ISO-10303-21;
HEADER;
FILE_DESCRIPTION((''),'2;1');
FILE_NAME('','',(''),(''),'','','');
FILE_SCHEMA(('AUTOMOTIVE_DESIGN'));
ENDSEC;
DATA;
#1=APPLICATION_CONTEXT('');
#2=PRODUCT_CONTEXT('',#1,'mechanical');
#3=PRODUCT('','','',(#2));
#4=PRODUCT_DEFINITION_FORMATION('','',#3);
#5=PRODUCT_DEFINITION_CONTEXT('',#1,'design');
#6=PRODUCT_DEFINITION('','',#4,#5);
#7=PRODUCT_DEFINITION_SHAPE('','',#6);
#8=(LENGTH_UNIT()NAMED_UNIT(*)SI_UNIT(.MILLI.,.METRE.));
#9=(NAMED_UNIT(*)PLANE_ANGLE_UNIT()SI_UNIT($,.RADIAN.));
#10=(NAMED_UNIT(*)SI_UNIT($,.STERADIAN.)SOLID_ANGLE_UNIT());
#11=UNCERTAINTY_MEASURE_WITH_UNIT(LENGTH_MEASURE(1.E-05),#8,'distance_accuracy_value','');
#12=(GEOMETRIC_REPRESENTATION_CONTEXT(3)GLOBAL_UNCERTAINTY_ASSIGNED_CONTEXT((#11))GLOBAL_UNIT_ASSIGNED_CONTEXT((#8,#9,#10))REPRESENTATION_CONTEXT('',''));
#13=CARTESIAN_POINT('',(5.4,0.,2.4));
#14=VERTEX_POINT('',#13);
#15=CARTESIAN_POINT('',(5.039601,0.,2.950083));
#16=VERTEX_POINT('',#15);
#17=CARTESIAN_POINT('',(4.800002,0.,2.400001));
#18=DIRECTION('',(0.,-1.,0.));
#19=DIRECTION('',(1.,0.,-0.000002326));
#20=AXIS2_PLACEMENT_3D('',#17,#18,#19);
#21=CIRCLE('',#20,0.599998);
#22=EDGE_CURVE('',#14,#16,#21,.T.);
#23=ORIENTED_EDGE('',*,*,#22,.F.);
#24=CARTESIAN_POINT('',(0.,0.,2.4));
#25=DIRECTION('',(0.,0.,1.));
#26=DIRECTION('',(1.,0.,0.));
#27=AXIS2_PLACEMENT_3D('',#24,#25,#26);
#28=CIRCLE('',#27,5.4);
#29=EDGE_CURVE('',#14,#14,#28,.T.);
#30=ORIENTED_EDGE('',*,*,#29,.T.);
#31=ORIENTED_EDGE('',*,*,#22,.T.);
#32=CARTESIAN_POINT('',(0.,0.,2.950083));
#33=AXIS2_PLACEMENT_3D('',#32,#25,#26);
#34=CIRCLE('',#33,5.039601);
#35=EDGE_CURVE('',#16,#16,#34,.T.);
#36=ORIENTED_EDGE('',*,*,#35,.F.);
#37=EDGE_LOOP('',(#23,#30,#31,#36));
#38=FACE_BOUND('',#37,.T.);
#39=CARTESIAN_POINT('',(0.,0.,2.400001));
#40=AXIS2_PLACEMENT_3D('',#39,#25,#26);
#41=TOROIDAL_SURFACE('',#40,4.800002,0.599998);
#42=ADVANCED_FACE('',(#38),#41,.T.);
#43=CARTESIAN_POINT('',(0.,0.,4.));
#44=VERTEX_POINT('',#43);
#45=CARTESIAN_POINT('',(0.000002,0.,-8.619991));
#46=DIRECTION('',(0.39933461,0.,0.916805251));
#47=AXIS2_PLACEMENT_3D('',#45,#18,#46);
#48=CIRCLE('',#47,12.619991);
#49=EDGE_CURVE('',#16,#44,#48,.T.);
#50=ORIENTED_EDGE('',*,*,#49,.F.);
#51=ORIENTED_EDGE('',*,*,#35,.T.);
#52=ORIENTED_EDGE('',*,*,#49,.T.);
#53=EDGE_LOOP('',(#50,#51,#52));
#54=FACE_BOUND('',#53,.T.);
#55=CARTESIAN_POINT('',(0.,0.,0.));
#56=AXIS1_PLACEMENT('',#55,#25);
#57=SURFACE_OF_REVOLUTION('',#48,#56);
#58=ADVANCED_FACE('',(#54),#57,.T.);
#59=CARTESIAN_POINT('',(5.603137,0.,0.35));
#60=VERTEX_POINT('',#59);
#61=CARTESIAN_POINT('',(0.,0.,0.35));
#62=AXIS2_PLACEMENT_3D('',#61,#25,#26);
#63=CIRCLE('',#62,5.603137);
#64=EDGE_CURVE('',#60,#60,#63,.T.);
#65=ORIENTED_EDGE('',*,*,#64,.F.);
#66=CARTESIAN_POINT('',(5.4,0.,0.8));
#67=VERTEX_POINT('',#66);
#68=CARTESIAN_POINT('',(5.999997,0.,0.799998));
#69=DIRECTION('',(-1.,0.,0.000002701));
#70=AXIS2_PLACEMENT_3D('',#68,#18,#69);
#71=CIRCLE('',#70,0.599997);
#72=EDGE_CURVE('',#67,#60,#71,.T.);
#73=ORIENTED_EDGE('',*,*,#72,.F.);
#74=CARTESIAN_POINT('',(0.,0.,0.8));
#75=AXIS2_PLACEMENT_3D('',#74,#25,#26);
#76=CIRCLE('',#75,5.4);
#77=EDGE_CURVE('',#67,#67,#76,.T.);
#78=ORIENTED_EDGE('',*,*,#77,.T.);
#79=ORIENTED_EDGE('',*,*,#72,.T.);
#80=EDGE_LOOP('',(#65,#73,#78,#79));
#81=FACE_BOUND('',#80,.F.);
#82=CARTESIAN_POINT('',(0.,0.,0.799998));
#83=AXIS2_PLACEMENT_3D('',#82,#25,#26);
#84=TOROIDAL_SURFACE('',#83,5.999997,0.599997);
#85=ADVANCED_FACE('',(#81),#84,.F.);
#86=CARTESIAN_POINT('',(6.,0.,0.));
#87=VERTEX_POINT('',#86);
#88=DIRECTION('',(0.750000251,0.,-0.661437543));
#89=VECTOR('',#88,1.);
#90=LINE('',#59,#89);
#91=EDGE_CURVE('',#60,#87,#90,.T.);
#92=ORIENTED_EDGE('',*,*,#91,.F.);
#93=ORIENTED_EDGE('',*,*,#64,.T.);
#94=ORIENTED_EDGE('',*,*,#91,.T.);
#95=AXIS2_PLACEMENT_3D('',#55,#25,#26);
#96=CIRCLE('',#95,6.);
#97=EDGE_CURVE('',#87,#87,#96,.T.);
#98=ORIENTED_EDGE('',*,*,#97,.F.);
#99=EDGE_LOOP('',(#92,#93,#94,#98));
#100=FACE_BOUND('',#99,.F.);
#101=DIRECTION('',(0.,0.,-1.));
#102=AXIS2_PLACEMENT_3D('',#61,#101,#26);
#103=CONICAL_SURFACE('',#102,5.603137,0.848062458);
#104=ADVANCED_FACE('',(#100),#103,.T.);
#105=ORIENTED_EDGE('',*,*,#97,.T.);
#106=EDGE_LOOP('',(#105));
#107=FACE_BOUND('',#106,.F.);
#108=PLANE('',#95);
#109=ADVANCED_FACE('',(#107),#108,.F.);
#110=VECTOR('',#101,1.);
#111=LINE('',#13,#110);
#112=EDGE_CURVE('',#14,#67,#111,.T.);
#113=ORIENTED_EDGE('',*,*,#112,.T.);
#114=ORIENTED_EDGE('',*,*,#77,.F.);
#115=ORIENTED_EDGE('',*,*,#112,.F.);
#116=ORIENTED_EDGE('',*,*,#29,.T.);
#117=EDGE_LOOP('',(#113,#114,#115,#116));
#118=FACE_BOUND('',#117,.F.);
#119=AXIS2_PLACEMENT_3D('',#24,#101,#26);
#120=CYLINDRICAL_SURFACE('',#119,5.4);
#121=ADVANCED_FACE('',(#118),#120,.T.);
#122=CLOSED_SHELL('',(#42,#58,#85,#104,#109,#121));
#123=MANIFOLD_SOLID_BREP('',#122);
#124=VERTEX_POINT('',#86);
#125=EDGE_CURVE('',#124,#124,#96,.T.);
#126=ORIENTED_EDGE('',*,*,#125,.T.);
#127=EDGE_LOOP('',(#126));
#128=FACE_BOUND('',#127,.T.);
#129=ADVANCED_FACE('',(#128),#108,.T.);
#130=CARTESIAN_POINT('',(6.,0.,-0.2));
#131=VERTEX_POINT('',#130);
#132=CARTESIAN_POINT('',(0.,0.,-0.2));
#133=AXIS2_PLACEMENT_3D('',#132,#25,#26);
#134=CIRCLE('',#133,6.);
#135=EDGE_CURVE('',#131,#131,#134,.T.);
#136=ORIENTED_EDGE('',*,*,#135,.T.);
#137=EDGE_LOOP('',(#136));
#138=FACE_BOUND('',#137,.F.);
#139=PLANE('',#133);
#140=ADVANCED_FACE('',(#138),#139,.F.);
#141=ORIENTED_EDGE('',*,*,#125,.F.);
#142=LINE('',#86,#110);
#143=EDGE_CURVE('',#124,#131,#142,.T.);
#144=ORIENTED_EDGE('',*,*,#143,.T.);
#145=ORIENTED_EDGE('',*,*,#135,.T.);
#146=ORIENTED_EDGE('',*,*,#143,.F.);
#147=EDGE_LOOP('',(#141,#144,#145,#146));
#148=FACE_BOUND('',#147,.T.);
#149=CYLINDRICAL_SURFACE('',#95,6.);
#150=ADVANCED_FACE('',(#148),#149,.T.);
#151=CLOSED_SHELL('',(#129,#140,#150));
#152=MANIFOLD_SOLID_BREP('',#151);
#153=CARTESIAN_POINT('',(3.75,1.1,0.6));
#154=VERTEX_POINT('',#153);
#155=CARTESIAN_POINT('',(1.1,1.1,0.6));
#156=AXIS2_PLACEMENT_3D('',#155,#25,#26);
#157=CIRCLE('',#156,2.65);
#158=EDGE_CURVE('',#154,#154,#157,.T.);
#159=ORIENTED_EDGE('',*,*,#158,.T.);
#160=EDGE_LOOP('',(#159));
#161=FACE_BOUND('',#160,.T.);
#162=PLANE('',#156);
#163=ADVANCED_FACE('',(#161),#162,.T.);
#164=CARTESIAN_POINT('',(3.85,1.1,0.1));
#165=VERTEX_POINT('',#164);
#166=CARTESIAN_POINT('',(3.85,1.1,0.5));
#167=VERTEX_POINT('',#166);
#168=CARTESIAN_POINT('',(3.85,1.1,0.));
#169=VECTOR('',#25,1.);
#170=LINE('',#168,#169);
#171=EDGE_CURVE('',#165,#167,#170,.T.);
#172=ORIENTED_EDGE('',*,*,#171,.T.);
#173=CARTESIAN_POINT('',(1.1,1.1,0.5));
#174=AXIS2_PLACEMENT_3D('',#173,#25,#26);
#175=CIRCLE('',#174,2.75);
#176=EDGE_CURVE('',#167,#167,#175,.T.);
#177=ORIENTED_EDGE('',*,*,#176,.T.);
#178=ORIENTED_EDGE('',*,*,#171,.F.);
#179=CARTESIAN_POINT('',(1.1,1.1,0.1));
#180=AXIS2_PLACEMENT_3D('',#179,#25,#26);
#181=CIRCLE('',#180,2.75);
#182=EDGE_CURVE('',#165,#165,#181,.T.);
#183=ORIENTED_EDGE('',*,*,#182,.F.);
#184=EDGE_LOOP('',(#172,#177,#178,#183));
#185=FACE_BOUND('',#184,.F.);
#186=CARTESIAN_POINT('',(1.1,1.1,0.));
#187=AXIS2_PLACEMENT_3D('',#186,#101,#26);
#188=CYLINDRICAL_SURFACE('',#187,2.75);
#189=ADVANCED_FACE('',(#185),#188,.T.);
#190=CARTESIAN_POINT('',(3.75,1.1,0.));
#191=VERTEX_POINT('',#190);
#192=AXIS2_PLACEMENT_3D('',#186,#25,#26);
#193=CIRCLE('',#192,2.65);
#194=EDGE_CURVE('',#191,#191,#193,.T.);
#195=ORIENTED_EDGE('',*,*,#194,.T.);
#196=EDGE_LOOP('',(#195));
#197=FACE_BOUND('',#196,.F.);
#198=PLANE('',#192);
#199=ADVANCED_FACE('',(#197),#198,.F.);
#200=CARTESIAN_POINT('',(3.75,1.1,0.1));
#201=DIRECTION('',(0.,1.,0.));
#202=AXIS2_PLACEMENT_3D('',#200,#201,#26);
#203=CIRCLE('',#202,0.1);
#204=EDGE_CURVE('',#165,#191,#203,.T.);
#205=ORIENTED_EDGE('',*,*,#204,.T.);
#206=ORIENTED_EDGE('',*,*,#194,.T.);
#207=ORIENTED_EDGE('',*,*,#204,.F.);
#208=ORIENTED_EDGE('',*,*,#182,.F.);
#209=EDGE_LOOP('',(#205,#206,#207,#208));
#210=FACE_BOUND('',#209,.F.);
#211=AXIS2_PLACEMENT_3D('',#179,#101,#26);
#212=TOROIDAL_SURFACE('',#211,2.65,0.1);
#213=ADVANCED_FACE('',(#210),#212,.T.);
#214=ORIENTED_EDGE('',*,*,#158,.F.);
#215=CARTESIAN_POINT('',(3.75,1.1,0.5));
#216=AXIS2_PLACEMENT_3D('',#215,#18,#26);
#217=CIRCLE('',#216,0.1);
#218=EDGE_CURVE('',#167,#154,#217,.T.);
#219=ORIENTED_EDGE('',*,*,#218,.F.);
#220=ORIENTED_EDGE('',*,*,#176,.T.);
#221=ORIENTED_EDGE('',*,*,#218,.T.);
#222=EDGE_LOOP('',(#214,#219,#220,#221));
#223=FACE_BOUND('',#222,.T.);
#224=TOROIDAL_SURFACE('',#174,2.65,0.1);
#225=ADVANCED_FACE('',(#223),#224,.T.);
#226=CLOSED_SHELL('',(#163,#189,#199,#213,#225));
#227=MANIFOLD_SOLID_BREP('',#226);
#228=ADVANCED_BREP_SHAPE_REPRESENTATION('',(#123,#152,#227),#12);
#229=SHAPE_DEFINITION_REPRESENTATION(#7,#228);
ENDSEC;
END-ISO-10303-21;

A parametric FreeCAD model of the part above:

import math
import FreeCAD as App
import Part
import Sketcher


def edges_at(feature, points):
    """Names of the edges that pass closest to the given points."""
    edges = feature.Shape.Edges
    near = lambda p: min(range(len(edges)), key=lambda i: edges[i].distToShape(Part.Vertex(*p))[0])
    return sorted({f"Edge{near(p) + 1}" for p in points})

doc = App.newDocument("Part")
body = doc.addObject("PartDesign::Body", "Body")

# Sketch on XZ plane
sketch1 = body.newObject("Sketcher::SketchObject", "Sketch")
sketch1.AttachmentSupport = (doc.getObject("XZ_Plane"), [""])
sketch1.MapMode = "FlatFace"
sketch1.addGeometry([
    Part.LineSegment(App.Vector(0, 0, 0), App.Vector(6, 0, 0)),  # 0
    Part.LineSegment(App.Vector(6, 0, 0), App.Vector(5.6, 0.35, 0)),  # 1
    Part.ArcOfCircle(Part.Circle(App.Vector(6, 0.8, 0), App.Vector(0, 0, 1), 0.6), math.radians(180), math.radians(229)),  # 2
    Part.LineSegment(App.Vector(5.4, 0.8, 0), App.Vector(5.4, 2.4, 0)),  # 3
    Part.ArcOfCircle(Part.Circle(App.Vector(4.8, 2.4, 0), App.Vector(0, 0, 1), 0.6), math.radians(0), math.radians(66)),  # 4
    Part.ArcOfCircle(Part.Circle(App.Vector(0, -8.62, 0), App.Vector(0, 0, 1), 12.62), math.radians(66), math.radians(90)),  # 5
    Part.LineSegment(App.Vector(0, 4, 0), App.Vector(0, 0, 0)),  # 6
], False)
sketch1.addConstraint([
    Sketcher.Constraint("Coincident", 0, 2, 1, 1),
    Sketcher.Constraint("Tangent", 1, 2, 2, 2),
    Sketcher.Constraint("Coincident", 2, 1, 3, 1),
    Sketcher.Constraint("Coincident", 3, 2, 4, 1),
    Sketcher.Constraint("Tangent", 4, 2, 5, 1),
    Sketcher.Constraint("Coincident", 5, 2, 6, 1),
    Sketcher.Constraint("Coincident", 6, 2, 0, 1),
    Sketcher.Constraint("Horizontal", 0),
    Sketcher.Constraint("Vertical", 3),
    Sketcher.Constraint("Vertical", 6),
    Sketcher.Constraint("Coincident", 6, 2, -1, 1),
    Sketcher.Constraint("Equal", 2, 4),
    Sketcher.Constraint("PointOnObject", 5, 3, -2),
    Sketcher.Constraint("Horizontal", 4, 3, 3, 2),
    Sketcher.Constraint("DistanceX", 0, 1, 0, 2, 6.0),
    Sketcher.Constraint("DistanceY", 6, 2, 6, 1, 4.0),
    Sketcher.Constraint("DistanceY", 3, 1, 3, 2, 1.6),
    Sketcher.Constraint("DistanceY", -1, 1, 2, 3, 0.799998),
    Sketcher.Constraint("DistanceY", -1, 1, 4, 3, 2.400001),
    Sketcher.Constraint("DistanceX", -1, 1, 2, 1, 5.4),
    Sketcher.Constraint("DistanceX", 5, 3, 4, 3, 4.8),
])
revolution = body.newObject("PartDesign::Revolution", "Revolution")
revolution.Profile = sketch1
revolution.ReferenceAxis = (sketch1, ["V_Axis"])
revolution.Angle = 360
body2 = doc.addObject("PartDesign::Body", "Body001")

# Sketch on XY plane
sketch2 = body2.newObject("Sketcher::SketchObject", "Sketch001")
sketch2.AttachmentSupport = (doc.getObject("XY_Plane001"), [""])
sketch2.MapMode = "FlatFace"
sketch2.addGeometry(Part.Circle(App.Vector(0, 0, 0), App.Vector(0, 0, 1), 6), False)
sketch2.addConstraint([
    Sketcher.Constraint("Coincident", 0, 3, -1, 1),
    Sketcher.Constraint("Diameter", 0, 12.0),
])
pad1 = body2.newObject("PartDesign::Pad", "Pad")
pad1.Profile = sketch2
pad1.Length = 0.2
pad1.Reversed = True
body3 = doc.addObject("PartDesign::Body", "Body002")

# Sketch on XY plane
sketch3 = body3.newObject("Sketcher::SketchObject", "Sketch002")
sketch3.AttachmentSupport = (doc.getObject("XY_Plane002"), [""])
sketch3.MapMode = "FlatFace"
sketch3.addGeometry(Part.Circle(App.Vector(1.1, 1.1, 0), App.Vector(0, 0, 1), 2.8), False)
sketch3.addConstraint([
    Sketcher.Constraint("Diameter", 0, 5.5),
    Sketcher.Constraint("DistanceX", -1, 1, 0, 3, 1.1),
    Sketcher.Constraint("DistanceY", -1, 1, 0, 3, 1.1),
])
pad2 = body3.newObject("PartDesign::Pad", "Pad001")
pad2.Profile = sketch3
pad2.Length = 0.6
doc.recompute()

fillet = body3.newObject("PartDesign::Fillet", "Fillet")
fillet.Base = (pad2, edges_at(pad2, [(-1.65, 1.1, 0), (-1.65, 1.1, 0.6)]))
fillet.Radius = 0.1

doc.recompute()
